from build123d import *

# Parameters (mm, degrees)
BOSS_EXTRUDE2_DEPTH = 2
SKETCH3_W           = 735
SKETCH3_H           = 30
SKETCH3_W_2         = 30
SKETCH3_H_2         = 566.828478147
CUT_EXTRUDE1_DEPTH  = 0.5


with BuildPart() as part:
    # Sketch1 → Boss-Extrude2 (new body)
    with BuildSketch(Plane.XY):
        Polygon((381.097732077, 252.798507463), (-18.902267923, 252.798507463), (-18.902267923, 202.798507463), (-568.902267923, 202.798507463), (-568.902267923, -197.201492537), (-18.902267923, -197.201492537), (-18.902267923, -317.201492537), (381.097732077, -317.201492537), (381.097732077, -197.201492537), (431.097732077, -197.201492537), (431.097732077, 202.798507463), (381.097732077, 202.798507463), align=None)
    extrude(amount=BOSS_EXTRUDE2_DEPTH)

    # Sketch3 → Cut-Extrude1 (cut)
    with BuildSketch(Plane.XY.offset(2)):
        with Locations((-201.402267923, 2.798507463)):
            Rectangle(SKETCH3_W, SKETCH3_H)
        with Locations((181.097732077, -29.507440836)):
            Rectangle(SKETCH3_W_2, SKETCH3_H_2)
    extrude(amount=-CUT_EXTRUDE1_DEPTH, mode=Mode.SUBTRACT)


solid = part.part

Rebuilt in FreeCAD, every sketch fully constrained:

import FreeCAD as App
import Part
import Sketcher
Q = App.Units.Quantity


def add_polygon(sketch, points):
    """Adds a closed chain of lines whose ends are joined by coincident constraints."""
    first, n = sketch.GeometryCount, len(points)
    for a, b in zip(points, points[1:] + points[:1]):
        sketch.addGeometry(Part.LineSegment(App.Vector(*a, 0), App.Vector(*b, 0)), False)
    for i in range(n):
        sketch.addConstraint(Sketcher.Constraint("Coincident", first + i, 2, first + (i + 1) % n, 1))

doc = App.newDocument("Part")
body = doc.addObject("PartDesign::Body", "Body")

sketch1 = body.newObject("Sketcher::SketchObject", "Sketch")
sketch1.AttachmentSupport = (doc.getObject("XY_Plane"), [""])
sketch1.MapMode = "FlatFace"
add_polygon(sketch1, [(381, 253), (-19, 253), (-19, 203), (-569, 203), (-569, -197), (-19, -197), (-19, -317), (381, -317), (381, -197), (431, -197), (431, 203), (381, 203)])
sketch1.addConstraint([
    Sketcher.Constraint("Horizontal", 0),
    Sketcher.Constraint("Vertical", 1),
    Sketcher.Constraint("Horizontal", 2),
    Sketcher.Constraint("Vertical", 3),
    Sketcher.Constraint("Horizontal", 4),
    Sketcher.Constraint("Vertical", 5),
    Sketcher.Constraint("Horizontal", 6),
    Sketcher.Constraint("Vertical", 7),
    Sketcher.Constraint("Horizontal", 8),
    Sketcher.Constraint("Vertical", 9),
    Sketcher.Constraint("Horizontal", 10),
    Sketcher.Constraint("Vertical", 11),
    Sketcher.Constraint("Horizontal", 4, 2, 7, 2),
    Sketcher.Constraint("Horizontal", 2, 2, 9, 2),
    Sketcher.Constraint("Vertical", 1, 2, 4, 2),
    Sketcher.Constraint("Vertical", 7, 2, 10, 2),
    Sketcher.Constraint("Equal", 10, 1),
    Sketcher.Constraint("Equal", 6, 3),
    Sketcher.Constraint("DistanceX", 0, 2, 0, 1, Q("400 mm")),
    Sketcher.Constraint("DistanceX", 2, 2, 2, 1, Q("550 mm")),
    Sketcher.Constraint("DistanceX", 8, 1, 8, 2, Q("50 mm")),
    Sketcher.Constraint("DistanceY", 5, 2, 5, 1, Q("120 mm")),
    Sketcher.Constraint("DistanceX", 0, 2, -1, 1, Q("18.902268 mm")),
    Sketcher.Constraint("DistanceY", -1, 1, 0, 2, Q("252.798507 mm")),
])
pad1 = body.newObject("PartDesign::Pad", "Pad")
pad1.Profile = sketch1
pad1.Length = 2

sketch2 = body.newObject("Sketcher::SketchObject", "Sketch001")
sketch2.AttachmentSupport = (doc.getObject("XY_Plane"), [""])
sketch2.MapMode = "FlatFace"
sketch2.AttachmentOffset = App.Placement(App.Vector(0, 0, 2), App.Rotation())
add_polygon(sketch2, [(-569, 18), (-569, -12), (166, -12), (166, -313), (196, -313), (196, 254), (166, 254), (166, 18)])
sketch2.addConstraint([
    Sketcher.Constraint("Vertical", 0),
    Sketcher.Constraint("Horizontal", 1),
    Sketcher.Constraint("Vertical", 2),
    Sketcher.Constraint("Horizontal", 3),
    Sketcher.Constraint("Vertical", 4),
    Sketcher.Constraint("Horizontal", 5),
    Sketcher.Constraint("Vertical", 6),
    Sketcher.Constraint("Horizontal", 7),
    Sketcher.Constraint("Vertical", 2, 2, 5, 2),
    Sketcher.Constraint("Equal", 5, 0),
    Sketcher.Constraint("DistanceX", 1, 1, 1, 2, Q("735 mm")),
    Sketcher.Constraint("DistanceX", 3, 1, 3, 2, Q("30 mm")),
    Sketcher.Constraint("DistanceY", 4, 1, 4, 2, Q("566.828478 mm")),
    Sketcher.Constraint("DistanceY", 6, 2, 6, 1, Q("236.108291 mm")),
    Sketcher.Constraint("DistanceY", -1, 1, 4, 2, Q("253.906798 mm")),
    Sketcher.Constraint("DistanceX", 0, 2, -1, 1, Q("568.902268 mm")),
])
pocket1 = body.newObject("PartDesign::Pocket", "Pocket")
pocket1.Profile = sketch2
pocket1.Length = 0.5

doc.recompute()
